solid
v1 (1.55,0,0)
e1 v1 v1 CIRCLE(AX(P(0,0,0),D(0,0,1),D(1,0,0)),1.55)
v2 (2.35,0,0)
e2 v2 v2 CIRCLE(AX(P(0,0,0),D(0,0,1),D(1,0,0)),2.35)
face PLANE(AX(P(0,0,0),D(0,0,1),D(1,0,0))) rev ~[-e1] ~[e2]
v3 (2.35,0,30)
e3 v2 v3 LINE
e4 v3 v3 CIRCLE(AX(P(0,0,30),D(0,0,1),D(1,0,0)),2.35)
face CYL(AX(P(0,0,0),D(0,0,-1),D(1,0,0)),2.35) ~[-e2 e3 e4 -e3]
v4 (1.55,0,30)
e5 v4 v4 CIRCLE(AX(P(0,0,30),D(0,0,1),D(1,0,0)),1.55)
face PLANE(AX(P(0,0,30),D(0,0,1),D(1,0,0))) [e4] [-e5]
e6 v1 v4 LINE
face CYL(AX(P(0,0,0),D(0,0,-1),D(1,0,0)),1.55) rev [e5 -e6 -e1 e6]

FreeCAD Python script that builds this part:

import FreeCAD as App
import Part
import Sketcher
from FreeCAD import Vector

doc = App.newDocument("Part")
params = doc.addObject("Spreadsheet::Sheet", "Params")
for row, (alias, value) in enumerate([
    ("sketch1_diameter", "3.1 mm"),
    ("sketch1_diameter2", "4.7 mm"),
    ("pad1_length", "30 mm"),
], start=1):
    params.set(f"A{row}", alias)
    params.set(f"B{row}", "=" + value)
    params.setAlias(f"B{row}", alias)

body = doc.addObject("PartDesign::Body", "Body")

sketch1 = body.newObject("Sketcher::SketchObject", "Sketch")
sketch1.AttachmentSupport = (doc.getObject("XY_Plane"), [""])
sketch1.MapMode = "FlatFace"
sketch1.addGeometry([
    Part.Circle(Vector(0, 0, 0), Vector(0, 0, 1), 2.4),
    Part.Circle(Vector(0, 0, 0), Vector(0, 0, 1), 1.6),
], False)
sketch1.addConstraint([
    Sketcher.Constraint("Coincident", 0, 3, -1, 1),
    Sketcher.Constraint("Coincident", 1, 3, -1, 1),
    Sketcher.Constraint("Diameter", 1, 3.1),
    Sketcher.Constraint("Diameter", 0, 4.7),
])
sketch1.setExpression("Constraints[2]", "Params.sketch1_diameter")
sketch1.setExpression("Constraints[3]", "Params.sketch1_diameter2")
pad1 = body.newObject("PartDesign::Pad", "Pad")
pad1.Profile = sketch1
pad1.setExpression("Length", "Params.pad1_length")

doc.recompute()
